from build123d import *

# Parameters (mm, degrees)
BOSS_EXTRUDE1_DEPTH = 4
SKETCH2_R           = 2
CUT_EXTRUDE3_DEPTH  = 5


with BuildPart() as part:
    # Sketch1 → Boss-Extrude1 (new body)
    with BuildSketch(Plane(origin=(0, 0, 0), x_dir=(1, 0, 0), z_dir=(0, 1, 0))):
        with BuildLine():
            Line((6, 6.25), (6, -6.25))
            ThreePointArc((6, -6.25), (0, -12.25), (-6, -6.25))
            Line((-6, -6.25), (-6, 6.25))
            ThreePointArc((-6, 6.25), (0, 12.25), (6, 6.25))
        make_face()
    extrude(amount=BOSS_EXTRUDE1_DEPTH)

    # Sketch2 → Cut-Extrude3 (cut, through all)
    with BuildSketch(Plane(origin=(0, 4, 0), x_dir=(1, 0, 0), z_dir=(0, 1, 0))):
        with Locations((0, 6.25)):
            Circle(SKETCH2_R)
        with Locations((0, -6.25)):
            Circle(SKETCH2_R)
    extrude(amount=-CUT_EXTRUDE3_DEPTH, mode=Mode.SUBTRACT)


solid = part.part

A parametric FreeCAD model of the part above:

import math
import FreeCAD as App
import Part
import Sketcher

doc = App.newDocument("Part")
params = doc.addObject("Spreadsheet::Sheet", "Params")
for row, (alias, value) in enumerate([
    ("sketch1_radius", "6 mm"),
    ("sketch1_height", "12.5 mm"),
    ("pad1_length", "4 mm"),
    ("sketch2_diameter", "4 mm"),
], start=1):
    params.set(f"A{row}", alias)
    params.set(f"B{row}", "=" + value)
    params.setAlias(f"B{row}", alias)

body = doc.addObject("PartDesign::Body", "Body")

# Sketch on XZ plane
sketch1 = doc.addObject("Sketcher::SketchObject", "Sketch")
body.addObject(sketch1)
sketch1.AttachmentSupport = (doc.XZ_Plane, [""])
sketch1.MapMode = "FlatFace"
sketch1.addGeometry([
    Part.LineSegment(App.Vector(6, 6.25, 0), App.Vector(6, -6.25, 0)),
    Part.ArcOfCircle(Part.Circle(App.Vector(0, -6.25, 0), App.Vector(0, 0, 1), 6), math.radians(180), math.radians(360)),
    Part.LineSegment(App.Vector(-6, -6.25, 0), App.Vector(-6, 6.25, 0)),
    Part.ArcOfCircle(Part.Circle(App.Vector(0, 6.25, 0), App.Vector(0, 0, 1), 6), math.radians(0), math.radians(180)),
], False)
sketch1.addConstraint([
    Sketcher.Constraint("Tangent", 0, 2, 1, 2),
    Sketcher.Constraint("Tangent", 1, 1, 2, 1),
    Sketcher.Constraint("Tangent", 2, 2, 3, 2),
    Sketcher.Constraint("Tangent", 3, 1, 0, 1),
    Sketcher.Constraint("Vertical", 0),
    Sketcher.Constraint("Vertical", 2),
    Sketcher.Constraint("Symmetric", 1, 3, 3, 3, -1, 1),
    Sketcher.Constraint("Radius", 1, 6.0),
    Sketcher.Constraint("DistanceY", 0, 2, 0, 1, 12.5),
])
sketch1.setExpression("Constraints[7]", "Params.sketch1_radius")
sketch1.setExpression("Constraints[8]", "Params.sketch1_height")
pad1 = doc.addObject("PartDesign::Pad", "Pad")
body.addObject(pad1)
pad1.Profile = sketch1
pad1.setExpression("Length", "Params.pad1_length")
pad1.Reversed = True

# Sketch on XZ plane
sketch2 = doc.addObject("Sketcher::SketchObject", "Sketch001")
body.addObject(sketch2)
sketch2.AttachmentSupport = (doc.XZ_Plane, [""])
sketch2.MapMode = "FlatFace"
sketch2.AttachmentOffset = App.Placement(App.Vector(0, 0, -4), App.Rotation())
sketch2.addGeometry([
    Part.Circle(App.Vector(0, -6.25, 0), App.Vector(0, 0, 1), 2),
    Part.Circle(App.Vector(0, 6.25, 0), App.Vector(0, 0, 1), 2),
], False)
sketch2.addConstraint([
    Sketcher.Constraint("Equal", 0, 1),
    Sketcher.Constraint("Symmetric", 0, 3, 1, 3, -1, 1),
    Sketcher.Constraint("PointOnObject", 0, 3, -2),
    Sketcher.Constraint("Diameter", 0, 4.0),
    Sketcher.Constraint("DistanceY", 0, 3, 1, 3, 12.5),
])
sketch2.setExpression("Constraints[3]", "Params.sketch2_diameter")
pocket1 = doc.addObject("PartDesign::Pocket", "Pocket")
body.addObject(pocket1)
pocket1.Profile = sketch2
pocket1.Type = "ThroughAll"
pocket1.Reversed = True

doc.recompute()
